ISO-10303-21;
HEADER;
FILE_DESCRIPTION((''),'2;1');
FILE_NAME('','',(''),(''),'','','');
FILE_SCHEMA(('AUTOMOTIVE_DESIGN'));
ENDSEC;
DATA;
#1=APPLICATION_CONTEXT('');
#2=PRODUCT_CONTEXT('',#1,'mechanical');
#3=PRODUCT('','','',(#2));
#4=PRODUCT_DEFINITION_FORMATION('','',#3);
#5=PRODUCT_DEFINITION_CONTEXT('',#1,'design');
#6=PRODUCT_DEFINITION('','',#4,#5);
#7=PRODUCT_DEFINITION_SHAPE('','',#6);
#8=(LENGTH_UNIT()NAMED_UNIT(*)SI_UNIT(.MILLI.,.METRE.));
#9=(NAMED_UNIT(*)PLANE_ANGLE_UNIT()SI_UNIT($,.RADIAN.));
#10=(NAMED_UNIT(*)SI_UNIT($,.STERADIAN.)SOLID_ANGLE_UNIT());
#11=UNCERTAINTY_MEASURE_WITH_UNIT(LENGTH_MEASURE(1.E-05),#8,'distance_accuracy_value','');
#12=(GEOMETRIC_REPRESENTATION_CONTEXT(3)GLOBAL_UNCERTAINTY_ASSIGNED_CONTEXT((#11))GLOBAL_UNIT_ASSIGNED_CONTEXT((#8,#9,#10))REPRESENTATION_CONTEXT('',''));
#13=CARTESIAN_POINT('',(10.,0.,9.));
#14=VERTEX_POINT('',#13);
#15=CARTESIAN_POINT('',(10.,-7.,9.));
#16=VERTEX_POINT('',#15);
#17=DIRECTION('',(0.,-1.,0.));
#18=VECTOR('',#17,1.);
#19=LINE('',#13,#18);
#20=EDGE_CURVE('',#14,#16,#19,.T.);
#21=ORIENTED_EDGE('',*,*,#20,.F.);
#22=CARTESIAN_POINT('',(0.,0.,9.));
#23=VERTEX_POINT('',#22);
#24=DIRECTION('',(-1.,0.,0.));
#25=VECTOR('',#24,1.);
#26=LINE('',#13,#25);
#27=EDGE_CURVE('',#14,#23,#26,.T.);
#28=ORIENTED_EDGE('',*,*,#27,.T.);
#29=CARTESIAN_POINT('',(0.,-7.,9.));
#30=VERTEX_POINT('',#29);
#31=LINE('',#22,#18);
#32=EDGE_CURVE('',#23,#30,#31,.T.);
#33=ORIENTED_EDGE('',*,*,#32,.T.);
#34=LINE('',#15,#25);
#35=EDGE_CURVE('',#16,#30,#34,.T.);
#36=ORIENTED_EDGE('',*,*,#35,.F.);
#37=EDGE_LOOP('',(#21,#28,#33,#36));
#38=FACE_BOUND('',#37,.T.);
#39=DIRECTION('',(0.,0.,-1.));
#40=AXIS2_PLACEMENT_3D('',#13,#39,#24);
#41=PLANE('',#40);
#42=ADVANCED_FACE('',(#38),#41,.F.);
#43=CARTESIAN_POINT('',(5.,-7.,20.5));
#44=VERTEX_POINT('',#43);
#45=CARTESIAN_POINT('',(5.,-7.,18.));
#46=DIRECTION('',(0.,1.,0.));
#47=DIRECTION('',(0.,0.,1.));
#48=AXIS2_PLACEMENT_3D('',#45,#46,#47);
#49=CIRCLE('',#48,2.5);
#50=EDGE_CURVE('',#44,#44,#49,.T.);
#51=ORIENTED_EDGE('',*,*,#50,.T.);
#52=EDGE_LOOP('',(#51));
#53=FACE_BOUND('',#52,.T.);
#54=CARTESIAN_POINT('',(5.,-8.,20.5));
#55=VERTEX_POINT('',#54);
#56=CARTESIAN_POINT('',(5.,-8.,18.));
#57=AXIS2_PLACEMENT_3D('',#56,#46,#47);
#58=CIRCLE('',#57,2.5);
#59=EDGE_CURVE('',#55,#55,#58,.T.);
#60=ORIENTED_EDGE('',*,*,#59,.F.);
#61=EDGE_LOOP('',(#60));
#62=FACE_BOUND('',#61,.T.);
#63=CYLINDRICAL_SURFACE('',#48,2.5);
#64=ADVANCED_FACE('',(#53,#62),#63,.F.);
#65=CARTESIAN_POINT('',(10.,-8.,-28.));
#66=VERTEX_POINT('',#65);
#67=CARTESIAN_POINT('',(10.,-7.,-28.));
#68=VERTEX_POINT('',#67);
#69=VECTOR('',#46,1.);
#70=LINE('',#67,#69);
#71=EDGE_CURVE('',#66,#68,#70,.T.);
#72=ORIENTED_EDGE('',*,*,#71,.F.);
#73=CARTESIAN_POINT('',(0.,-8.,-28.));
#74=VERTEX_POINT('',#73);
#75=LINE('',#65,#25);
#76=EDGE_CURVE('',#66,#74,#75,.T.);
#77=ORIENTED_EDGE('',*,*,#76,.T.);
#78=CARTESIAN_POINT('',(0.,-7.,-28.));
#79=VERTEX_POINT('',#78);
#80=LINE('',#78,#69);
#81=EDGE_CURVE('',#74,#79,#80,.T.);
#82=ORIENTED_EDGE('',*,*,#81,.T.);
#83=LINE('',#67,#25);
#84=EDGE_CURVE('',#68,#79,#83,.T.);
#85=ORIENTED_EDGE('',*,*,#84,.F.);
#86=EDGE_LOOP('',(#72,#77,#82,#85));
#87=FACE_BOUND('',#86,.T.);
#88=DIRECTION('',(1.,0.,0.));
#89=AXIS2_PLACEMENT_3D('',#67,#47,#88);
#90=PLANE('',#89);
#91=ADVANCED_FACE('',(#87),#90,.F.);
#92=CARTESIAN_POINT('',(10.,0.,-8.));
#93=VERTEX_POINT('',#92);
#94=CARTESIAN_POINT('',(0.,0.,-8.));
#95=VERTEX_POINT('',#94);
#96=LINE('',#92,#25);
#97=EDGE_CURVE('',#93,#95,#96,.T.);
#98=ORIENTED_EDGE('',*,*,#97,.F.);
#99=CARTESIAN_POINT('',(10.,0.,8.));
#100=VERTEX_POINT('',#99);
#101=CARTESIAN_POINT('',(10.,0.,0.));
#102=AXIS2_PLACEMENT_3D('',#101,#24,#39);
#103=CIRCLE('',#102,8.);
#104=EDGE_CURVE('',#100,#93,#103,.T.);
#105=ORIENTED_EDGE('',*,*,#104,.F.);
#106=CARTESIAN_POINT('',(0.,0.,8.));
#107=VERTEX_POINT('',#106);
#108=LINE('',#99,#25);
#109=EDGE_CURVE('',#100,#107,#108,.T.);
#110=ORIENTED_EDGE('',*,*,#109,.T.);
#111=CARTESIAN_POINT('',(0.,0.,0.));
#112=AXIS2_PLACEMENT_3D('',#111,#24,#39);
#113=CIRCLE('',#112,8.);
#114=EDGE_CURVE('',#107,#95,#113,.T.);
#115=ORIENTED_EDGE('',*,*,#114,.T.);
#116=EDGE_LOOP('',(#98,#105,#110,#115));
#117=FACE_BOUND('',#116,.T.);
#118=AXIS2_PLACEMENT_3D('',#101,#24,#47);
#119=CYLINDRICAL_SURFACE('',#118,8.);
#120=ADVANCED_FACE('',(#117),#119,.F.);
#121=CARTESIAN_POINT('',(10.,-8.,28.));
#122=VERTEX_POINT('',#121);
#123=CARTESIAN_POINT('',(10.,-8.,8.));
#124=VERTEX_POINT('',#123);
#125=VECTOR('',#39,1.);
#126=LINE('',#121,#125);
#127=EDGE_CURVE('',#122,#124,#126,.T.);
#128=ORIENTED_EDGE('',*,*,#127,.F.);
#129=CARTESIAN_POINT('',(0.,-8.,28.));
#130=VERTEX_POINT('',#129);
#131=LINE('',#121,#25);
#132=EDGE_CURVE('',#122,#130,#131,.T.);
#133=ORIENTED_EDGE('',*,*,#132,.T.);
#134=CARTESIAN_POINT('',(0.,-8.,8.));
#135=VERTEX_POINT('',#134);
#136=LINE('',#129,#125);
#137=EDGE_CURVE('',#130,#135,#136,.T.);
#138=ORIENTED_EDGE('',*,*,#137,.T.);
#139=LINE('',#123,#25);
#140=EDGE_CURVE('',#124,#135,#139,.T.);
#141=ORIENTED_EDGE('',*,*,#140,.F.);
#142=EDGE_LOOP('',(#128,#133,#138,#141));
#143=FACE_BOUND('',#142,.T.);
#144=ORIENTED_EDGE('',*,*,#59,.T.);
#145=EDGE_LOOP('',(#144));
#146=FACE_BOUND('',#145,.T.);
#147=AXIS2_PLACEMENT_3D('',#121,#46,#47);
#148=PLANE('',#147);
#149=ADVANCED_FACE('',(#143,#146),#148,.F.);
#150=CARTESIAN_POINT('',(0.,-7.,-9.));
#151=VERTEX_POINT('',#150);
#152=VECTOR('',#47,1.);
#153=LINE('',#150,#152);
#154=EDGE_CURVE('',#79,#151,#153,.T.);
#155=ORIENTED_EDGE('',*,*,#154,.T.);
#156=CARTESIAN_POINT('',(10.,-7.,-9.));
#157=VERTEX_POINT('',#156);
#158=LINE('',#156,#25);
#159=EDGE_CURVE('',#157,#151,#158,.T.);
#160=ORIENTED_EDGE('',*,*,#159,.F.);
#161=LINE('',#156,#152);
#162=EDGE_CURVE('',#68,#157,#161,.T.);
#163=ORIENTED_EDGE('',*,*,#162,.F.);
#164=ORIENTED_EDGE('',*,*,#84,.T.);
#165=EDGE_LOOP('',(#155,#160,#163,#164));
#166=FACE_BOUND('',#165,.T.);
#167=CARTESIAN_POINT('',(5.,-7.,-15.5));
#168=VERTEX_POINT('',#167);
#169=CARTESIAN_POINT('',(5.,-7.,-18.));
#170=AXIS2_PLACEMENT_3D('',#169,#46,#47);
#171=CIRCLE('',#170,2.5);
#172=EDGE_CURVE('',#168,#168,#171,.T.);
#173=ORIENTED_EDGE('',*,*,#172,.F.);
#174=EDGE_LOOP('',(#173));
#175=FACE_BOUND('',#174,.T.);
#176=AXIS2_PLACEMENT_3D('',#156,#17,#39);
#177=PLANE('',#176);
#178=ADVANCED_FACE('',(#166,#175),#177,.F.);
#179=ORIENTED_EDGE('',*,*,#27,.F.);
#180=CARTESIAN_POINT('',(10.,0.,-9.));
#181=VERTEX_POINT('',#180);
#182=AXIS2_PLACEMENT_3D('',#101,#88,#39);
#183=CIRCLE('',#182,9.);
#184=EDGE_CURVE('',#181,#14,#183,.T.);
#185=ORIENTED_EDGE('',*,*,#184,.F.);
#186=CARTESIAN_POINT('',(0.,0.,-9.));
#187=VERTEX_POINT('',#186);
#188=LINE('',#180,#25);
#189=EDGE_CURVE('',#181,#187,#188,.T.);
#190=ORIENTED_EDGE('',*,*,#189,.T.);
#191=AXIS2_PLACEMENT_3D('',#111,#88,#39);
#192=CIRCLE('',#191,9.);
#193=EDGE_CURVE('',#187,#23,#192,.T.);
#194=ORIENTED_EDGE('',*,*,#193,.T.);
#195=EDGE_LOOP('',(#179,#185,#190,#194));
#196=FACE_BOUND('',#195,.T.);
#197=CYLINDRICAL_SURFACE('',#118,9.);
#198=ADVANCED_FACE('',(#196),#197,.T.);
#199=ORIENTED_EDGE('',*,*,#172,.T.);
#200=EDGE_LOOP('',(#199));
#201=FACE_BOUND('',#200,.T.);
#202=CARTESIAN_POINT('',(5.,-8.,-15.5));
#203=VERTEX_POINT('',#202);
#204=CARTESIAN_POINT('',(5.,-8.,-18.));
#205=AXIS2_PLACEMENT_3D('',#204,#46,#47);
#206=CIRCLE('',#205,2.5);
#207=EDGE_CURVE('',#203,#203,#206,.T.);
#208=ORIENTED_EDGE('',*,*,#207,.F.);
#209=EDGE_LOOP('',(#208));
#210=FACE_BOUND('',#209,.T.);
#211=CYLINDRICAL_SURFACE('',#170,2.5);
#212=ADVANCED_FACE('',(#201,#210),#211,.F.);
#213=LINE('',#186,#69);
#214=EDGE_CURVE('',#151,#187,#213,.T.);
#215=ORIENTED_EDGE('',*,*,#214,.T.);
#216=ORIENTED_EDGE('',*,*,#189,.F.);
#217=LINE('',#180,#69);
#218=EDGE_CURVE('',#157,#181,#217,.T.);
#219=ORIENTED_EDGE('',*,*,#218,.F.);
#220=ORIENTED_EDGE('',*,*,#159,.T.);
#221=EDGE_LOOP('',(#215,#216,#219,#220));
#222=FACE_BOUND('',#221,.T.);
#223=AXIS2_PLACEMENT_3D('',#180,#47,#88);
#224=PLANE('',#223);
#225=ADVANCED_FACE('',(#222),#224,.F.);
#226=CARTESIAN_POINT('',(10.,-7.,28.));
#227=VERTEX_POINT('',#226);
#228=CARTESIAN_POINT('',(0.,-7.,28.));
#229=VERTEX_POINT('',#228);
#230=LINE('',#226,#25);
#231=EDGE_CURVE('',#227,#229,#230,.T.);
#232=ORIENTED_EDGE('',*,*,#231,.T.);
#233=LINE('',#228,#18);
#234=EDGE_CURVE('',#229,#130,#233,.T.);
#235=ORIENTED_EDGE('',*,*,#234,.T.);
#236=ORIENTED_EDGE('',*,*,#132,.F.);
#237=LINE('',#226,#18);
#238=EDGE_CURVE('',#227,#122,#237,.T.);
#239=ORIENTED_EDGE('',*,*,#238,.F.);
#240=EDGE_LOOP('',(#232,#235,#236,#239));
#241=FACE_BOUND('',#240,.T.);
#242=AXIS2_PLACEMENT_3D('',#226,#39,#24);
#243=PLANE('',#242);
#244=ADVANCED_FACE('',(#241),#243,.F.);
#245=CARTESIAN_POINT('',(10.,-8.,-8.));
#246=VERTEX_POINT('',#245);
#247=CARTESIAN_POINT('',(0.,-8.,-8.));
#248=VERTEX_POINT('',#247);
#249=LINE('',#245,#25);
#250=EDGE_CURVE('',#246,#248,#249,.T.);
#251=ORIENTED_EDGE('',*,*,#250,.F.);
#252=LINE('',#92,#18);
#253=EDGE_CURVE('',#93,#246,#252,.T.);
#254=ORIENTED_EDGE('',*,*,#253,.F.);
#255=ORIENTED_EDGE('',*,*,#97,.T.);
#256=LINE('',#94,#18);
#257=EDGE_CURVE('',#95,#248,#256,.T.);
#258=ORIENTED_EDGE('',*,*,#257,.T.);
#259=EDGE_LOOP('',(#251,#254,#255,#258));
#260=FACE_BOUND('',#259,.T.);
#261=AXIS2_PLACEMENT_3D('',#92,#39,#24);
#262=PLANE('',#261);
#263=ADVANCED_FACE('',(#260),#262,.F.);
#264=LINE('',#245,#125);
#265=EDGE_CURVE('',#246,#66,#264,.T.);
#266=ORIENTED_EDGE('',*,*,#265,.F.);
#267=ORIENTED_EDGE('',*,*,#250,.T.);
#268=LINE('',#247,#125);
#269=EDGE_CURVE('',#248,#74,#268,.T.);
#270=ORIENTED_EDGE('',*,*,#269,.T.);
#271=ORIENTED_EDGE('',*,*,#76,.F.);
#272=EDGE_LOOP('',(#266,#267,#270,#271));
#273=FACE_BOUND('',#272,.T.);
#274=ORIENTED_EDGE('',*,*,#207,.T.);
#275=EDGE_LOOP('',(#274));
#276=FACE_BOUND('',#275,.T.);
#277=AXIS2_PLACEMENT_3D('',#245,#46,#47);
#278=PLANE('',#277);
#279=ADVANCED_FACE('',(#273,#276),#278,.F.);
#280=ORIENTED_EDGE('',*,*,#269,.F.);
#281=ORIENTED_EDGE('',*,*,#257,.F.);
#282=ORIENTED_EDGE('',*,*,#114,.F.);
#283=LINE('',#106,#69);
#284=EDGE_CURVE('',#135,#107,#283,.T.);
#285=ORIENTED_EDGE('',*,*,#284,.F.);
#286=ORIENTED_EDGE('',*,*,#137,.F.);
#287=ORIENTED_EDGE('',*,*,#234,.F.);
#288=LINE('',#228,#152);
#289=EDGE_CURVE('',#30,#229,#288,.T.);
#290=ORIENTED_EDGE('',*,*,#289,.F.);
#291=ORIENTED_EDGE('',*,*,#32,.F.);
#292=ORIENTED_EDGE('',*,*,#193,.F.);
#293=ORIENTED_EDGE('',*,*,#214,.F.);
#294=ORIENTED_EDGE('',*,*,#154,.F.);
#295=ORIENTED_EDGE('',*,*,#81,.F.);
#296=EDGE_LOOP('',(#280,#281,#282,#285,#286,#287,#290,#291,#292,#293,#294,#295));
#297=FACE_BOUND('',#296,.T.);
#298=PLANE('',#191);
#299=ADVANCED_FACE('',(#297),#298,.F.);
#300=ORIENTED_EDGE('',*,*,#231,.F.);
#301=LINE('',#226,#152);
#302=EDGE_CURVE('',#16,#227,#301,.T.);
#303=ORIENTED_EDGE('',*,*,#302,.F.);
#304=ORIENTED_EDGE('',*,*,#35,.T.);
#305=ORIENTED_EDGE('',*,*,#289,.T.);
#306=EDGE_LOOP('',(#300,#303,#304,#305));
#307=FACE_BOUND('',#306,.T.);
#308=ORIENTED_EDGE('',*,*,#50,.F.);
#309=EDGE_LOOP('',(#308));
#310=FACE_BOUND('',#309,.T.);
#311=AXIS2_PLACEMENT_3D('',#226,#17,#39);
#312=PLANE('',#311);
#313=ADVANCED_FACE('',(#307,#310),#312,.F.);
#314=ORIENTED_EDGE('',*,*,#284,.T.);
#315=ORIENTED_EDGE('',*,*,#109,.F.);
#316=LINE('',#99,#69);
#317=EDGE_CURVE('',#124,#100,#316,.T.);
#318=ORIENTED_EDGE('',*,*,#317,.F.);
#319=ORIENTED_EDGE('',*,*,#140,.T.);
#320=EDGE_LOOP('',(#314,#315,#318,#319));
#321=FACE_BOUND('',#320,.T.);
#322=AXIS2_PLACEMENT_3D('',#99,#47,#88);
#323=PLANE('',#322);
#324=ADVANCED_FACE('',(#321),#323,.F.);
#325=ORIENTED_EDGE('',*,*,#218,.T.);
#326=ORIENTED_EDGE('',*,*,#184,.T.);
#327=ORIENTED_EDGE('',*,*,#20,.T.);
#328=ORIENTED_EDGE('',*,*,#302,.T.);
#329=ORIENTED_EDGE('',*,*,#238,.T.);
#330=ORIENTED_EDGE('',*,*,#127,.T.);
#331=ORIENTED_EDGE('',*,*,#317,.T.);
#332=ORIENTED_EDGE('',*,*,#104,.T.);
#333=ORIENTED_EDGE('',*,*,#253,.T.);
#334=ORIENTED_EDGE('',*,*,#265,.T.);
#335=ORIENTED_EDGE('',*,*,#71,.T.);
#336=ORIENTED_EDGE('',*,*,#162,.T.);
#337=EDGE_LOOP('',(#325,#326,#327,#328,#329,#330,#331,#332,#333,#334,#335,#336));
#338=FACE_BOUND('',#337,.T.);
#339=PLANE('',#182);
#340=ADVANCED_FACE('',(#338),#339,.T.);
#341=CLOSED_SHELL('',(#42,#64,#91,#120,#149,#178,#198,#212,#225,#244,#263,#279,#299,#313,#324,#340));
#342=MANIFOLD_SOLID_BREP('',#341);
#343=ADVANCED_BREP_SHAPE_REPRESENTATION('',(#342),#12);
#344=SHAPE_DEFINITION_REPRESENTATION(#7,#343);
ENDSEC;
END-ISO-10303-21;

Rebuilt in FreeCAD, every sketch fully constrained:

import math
import FreeCAD as App
import Part
import Sketcher

V = App.Vector
Q = App.Units.Quantity

doc = App.newDocument("Part")
params = doc.addObject("Spreadsheet::Sheet", "Params")
for row, (alias, value) in enumerate([
    ("sketch1_radius", "8 mm"),
    ("sketch1_radius2", "9 mm"),
    ("sketch1_width", "1 mm"),
    ("sketch1_width2", "8 mm"),
    ("sketch1_height", "19 mm"),
    ("pad1_length", "10 mm"),
    ("sketch2_diameter", "5 mm"),
    ("hole_diameter", "5 mm"),
    ("hole_depth", "10 mm"),
    ("sketch3_diameter", "5 mm"),
    ("hole2_diameter", "5 mm"),
    ("hole2_depth", "10 mm"),
], start=1):
    params.set(f"A{row}", alias)
    params.set(f"B{row}", "=" + value)
    params.setAlias(f"B{row}", alias)

body = doc.addObject("PartDesign::Body", "Body")

# Sketch on YZ plane
sketch1 = body.newObject("Sketcher::SketchObject", "Sketch")
sketch1.AttachmentSupport = (doc.getObject("YZ_Plane"), [""])
sketch1.MapMode = "FlatFace"
sketch1.addGeometry(Part.LineSegment(V(-7, 9, 0), V(-7, 28, 0)), False)
sketch1.addGeometry(Part.LineSegment(V(-7, 28, 0), V(-8, 28, 0)), False)
sketch1.addGeometry(Part.LineSegment(V(-8, 28, 0), V(-8, 8, 0)), False)
sketch1.addGeometry(Part.LineSegment(V(-8, 8, 0), V(0, 8, 0)), False)
sketch1.addGeometry(Part.ArcOfCircle(Part.Circle(V(0, 0, 0), V(0, 0, 1), 8), math.radians(-90), math.radians(90)), False)
sketch1.addGeometry(Part.LineSegment(V(0, -8, 0), V(-8, -8, 0)), False)
sketch1.addGeometry(Part.LineSegment(V(-8, -8, 0), V(-8, -28, 0)), False)
sketch1.addGeometry(Part.LineSegment(V(-8, -28, 0), V(-7, -28, 0)), False)
sketch1.addGeometry(Part.LineSegment(V(-7, -28, 0), V(-7, -9, 0)), False)
sketch1.addGeometry(Part.LineSegment(V(-7, -9, 0), V(0, -9, 0)), False)
sketch1.addGeometry(Part.ArcOfCircle(Part.Circle(V(0, 0, 0), V(0, 0, 1), 9), math.radians(-90), math.radians(90)), False)
sketch1.addGeometry(Part.LineSegment(V(0, 9, 0), V(-7, 9, 0)), False)
sketch1.addConstraint(Sketcher.Constraint("Coincident", 0, 2, 1, 1))
sketch1.addConstraint(Sketcher.Constraint("Coincident", 1, 2, 2, 1))
sketch1.addConstraint(Sketcher.Constraint("Coincident", 2, 2, 3, 1))
sketch1.addConstraint(Sketcher.Constraint("Tangent", 3, 2, 4, 2))
sketch1.addConstraint(Sketcher.Constraint("Tangent", 4, 1, 5, 1))
sketch1.addConstraint(Sketcher.Constraint("Coincident", 5, 2, 6, 1))
sketch1.addConstraint(Sketcher.Constraint("Coincident", 6, 2, 7, 1))
sketch1.addConstraint(Sketcher.Constraint("Coincident", 7, 2, 8, 1))
sketch1.addConstraint(Sketcher.Constraint("Coincident", 8, 2, 9, 1))
sketch1.addConstraint(Sketcher.Constraint("Tangent", 9, 2, 10, 1))
sketch1.addConstraint(Sketcher.Constraint("Tangent", 10, 2, 11, 1))
sketch1.addConstraint(Sketcher.Constraint("Coincident", 11, 2, 0, 1))
sketch1.addConstraint(Sketcher.Constraint("Vertical", 0))
sketch1.addConstraint(Sketcher.Constraint("Horizontal", 1))
sketch1.addConstraint(Sketcher.Constraint("Vertical", 2))
sketch1.addConstraint(Sketcher.Constraint("Horizontal", 3))
sketch1.addConstraint(Sketcher.Constraint("Horizontal", 5))
sketch1.addConstraint(Sketcher.Constraint("Vertical", 6))
sketch1.addConstraint(Sketcher.Constraint("Horizontal", 7))
sketch1.addConstraint(Sketcher.Constraint("Vertical", 8))
sketch1.addConstraint(Sketcher.Constraint("Horizontal", 9))
sketch1.addConstraint(Sketcher.Constraint("Horizontal", 11))
sketch1.addConstraint(Sketcher.Constraint("Coincident", 4, 3, -1, 1))
sketch1.addConstraint(Sketcher.Constraint("Coincident", 10, 3, -1, 1))
sketch1.addConstraint(Sketcher.Constraint("Symmetric", 1, 2, 6, 2, -1))
sketch1.addConstraint(Sketcher.Constraint("Vertical", 0, 2, 7, 2))
sketch1.addConstraint(Sketcher.Constraint("Radius", 4, Q("8 mm")))
sketch1.addConstraint(Sketcher.Constraint("Radius", 10, Q("9 mm")))
sketch1.addConstraint(Sketcher.Constraint("DistanceX", 1, 2, 1, 1, Q("1 mm")))
sketch1.addConstraint(Sketcher.Constraint("DistanceX", 3, 1, 3, 2, Q("8 mm")))
sketch1.addConstraint(Sketcher.Constraint("DistanceY", 0, 1, 0, 2, Q("19 mm")))
sketch1.setExpression("Constraints[26]", "Params.sketch1_radius")
sketch1.setExpression("Constraints[27]", "Params.sketch1_radius2")
sketch1.setExpression("Constraints[28]", "Params.sketch1_width")
sketch1.setExpression("Constraints[29]", "Params.sketch1_width2")
sketch1.setExpression("Constraints[30]", "Params.sketch1_height")
pad1 = body.newObject("PartDesign::Pad", "Pad")
pad1.Profile = sketch1
pad1.setExpression("Length", "Params.pad1_length")

# Sketch on XZ plane
sketch2 = body.newObject("Sketcher::SketchObject", "Sketch001")
sketch2.AttachmentSupport = (doc.getObject("XZ_Plane"), [""])
sketch2.MapMode = "FlatFace"
sketch2.AttachmentOffset = App.Placement(V(0, 0, 7), App.Rotation())
sketch2.addGeometry(Part.Circle(V(5, -18, 0), V(0, 0, 1), 2.5), False)
sketch2.addConstraint(Sketcher.Constraint("Diameter", 0, Q("5 mm")))
sketch2.addConstraint(Sketcher.Constraint("DistanceX", -1, 1, 0, 3, Q("5 mm")))
sketch2.addConstraint(Sketcher.Constraint("DistanceY", 0, 3, -1, 1, Q("18 mm")))
sketch2.setExpression("Constraints[0]", "Params.sketch2_diameter")
doc.recompute()
hole = body.newObject("PartDesign::Hole", "Hole")
hole.Profile = sketch2
hole.ThreadType = "None"
hole.setExpression("Diameter", "Params.hole_diameter")
hole.DepthType = "Dimension"
hole.setExpression("Depth", "Params.hole_depth")
hole.DrillPoint = "Angled"
hole.DrillPointAngle = 118
hole.Reversed = True

# Sketch on XZ plane
sketch3 = body.newObject("Sketcher::SketchObject", "Sketch002")
sketch3.AttachmentSupport = (doc.getObject("XZ_Plane"), [""])
sketch3.MapMode = "FlatFace"
sketch3.AttachmentOffset = App.Placement(V(0, 0, 7), App.Rotation())
sketch3.addGeometry(Part.Circle(V(5, 18, 0), V(0, 0, 1), 2.5), False)
sketch3.addConstraint(Sketcher.Constraint("Diameter", 0, Q("5 mm")))
sketch3.addConstraint(Sketcher.Constraint("DistanceX", -1, 1, 0, 3, Q("5 mm")))
sketch3.addConstraint(Sketcher.Constraint("DistanceY", -1, 1, 0, 3, Q("18 mm")))
sketch3.setExpression("Constraints[0]", "Params.sketch3_diameter")
doc.recompute()
hole2 = body.newObject("PartDesign::Hole", "Hole001")
hole2.Profile = sketch3
hole2.ThreadType = "None"
hole2.setExpression("Diameter", "Params.hole2_diameter")
hole2.DepthType = "Dimension"
hole2.setExpression("Depth", "Params.hole2_depth")
hole2.DrillPoint = "Angled"
hole2.DrillPointAngle = 118
hole2.Reversed = True

doc.recompute()
